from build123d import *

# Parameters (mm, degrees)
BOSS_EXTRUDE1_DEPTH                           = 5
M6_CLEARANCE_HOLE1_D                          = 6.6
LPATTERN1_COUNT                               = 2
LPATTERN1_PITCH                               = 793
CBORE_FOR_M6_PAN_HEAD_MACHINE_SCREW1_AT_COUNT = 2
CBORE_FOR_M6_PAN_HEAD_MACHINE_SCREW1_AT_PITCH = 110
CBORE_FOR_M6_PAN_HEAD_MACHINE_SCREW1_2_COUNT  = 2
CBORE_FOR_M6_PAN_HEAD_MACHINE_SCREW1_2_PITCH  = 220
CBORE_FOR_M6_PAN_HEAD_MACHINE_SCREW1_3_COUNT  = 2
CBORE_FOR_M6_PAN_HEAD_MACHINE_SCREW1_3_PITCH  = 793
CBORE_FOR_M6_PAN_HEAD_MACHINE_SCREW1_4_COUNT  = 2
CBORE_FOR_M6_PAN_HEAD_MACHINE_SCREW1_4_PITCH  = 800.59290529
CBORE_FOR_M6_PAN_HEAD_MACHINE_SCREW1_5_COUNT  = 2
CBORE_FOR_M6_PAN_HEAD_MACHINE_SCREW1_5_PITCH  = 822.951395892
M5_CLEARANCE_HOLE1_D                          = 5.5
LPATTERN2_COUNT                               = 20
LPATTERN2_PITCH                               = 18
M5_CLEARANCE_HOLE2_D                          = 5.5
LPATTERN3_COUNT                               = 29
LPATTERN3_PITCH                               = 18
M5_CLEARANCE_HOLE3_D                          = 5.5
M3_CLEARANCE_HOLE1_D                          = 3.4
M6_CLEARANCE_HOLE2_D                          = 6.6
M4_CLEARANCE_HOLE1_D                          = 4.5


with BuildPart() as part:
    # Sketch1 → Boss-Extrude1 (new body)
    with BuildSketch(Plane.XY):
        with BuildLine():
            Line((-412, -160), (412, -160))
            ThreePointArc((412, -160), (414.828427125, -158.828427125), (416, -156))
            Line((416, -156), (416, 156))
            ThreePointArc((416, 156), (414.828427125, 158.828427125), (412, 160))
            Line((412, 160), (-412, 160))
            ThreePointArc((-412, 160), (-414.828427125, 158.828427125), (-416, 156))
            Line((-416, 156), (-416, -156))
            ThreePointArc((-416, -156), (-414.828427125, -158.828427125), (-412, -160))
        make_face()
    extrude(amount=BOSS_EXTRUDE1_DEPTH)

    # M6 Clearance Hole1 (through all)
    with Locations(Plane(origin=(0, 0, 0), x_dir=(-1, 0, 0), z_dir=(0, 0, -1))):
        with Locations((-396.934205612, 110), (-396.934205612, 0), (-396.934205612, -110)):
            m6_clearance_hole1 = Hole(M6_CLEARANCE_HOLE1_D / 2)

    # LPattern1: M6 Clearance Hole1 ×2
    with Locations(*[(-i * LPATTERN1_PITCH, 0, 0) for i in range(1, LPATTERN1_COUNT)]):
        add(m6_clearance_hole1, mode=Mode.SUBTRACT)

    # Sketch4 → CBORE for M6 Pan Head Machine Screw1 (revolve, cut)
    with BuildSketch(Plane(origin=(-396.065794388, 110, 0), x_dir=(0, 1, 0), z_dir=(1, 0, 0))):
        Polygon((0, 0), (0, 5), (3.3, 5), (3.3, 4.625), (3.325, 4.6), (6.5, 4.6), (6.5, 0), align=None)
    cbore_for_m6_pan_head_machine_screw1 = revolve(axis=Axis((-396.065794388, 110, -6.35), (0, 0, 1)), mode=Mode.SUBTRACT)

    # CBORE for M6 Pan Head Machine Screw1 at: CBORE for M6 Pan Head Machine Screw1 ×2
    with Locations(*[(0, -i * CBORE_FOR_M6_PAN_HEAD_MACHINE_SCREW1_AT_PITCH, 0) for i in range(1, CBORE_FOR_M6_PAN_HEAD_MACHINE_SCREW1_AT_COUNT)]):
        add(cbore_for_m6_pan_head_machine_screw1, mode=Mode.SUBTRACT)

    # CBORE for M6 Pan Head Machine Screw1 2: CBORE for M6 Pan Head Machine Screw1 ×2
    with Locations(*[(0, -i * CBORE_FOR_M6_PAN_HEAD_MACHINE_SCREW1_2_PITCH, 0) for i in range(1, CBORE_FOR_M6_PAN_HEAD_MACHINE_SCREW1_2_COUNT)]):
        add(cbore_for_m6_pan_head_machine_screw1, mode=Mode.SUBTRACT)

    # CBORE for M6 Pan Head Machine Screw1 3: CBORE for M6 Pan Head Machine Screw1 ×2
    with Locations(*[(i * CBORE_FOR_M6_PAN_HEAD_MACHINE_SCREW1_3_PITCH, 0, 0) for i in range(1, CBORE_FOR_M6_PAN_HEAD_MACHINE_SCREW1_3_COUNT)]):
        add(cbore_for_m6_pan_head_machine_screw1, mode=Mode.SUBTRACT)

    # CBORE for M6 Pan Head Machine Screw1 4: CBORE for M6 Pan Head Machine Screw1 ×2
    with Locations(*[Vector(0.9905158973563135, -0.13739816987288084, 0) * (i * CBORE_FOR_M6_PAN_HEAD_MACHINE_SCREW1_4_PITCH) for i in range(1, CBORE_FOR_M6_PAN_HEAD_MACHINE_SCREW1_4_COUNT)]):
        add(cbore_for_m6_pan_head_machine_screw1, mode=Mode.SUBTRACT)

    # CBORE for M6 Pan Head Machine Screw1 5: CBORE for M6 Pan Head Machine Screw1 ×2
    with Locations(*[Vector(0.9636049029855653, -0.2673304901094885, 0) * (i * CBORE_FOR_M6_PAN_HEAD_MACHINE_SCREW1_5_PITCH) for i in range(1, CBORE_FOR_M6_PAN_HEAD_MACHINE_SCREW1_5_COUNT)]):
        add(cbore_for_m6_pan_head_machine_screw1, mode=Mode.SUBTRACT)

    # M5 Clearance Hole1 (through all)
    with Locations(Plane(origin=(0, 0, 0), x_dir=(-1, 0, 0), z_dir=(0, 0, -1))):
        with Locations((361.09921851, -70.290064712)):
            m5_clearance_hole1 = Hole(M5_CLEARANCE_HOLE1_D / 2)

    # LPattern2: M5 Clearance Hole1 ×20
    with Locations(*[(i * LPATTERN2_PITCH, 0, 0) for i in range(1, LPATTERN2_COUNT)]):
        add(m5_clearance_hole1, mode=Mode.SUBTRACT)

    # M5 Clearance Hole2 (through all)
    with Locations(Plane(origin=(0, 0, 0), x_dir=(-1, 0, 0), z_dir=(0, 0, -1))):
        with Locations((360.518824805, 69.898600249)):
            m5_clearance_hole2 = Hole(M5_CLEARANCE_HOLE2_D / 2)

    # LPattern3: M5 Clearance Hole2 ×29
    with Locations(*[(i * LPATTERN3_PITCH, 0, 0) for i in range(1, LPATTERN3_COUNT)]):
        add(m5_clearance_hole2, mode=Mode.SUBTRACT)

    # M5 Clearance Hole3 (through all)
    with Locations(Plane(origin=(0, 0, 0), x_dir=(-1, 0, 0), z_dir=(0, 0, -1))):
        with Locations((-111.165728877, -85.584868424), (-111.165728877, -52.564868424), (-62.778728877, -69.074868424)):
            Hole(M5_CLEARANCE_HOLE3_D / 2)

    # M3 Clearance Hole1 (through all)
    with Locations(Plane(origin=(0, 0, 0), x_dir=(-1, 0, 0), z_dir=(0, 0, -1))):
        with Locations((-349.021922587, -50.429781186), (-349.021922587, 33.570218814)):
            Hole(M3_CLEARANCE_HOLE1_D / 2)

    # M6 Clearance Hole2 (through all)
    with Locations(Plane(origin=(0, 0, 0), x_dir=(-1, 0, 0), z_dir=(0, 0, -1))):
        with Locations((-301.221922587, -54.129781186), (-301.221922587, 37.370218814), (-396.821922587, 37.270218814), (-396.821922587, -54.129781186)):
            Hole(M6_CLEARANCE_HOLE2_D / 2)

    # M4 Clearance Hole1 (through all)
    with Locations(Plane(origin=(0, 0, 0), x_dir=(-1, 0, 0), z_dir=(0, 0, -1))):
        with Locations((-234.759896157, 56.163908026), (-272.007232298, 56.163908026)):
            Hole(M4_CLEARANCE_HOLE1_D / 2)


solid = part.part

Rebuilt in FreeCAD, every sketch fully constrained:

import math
import FreeCAD as App
import Part
import Sketcher

V = App.Vector
Q = App.Units.Quantity


def add_polygon(sketch, points):
    """Adds a closed chain of lines whose ends are joined by coincident constraints."""
    first, n = sketch.GeometryCount, len(points)
    for a, b in zip(points, points[1:] + points[:1]):
        sketch.addGeometry(Part.LineSegment(App.Vector(*a, 0), App.Vector(*b, 0)), False)
    for i in range(n):
        sketch.addConstraint(Sketcher.Constraint("Coincident", first + i, 2, first + (i + 1) % n, 1))

doc = App.newDocument("Part")
body = doc.addObject("PartDesign::Body", "Body")

# Sketch on XY plane
sketch1 = doc.addObject("Sketcher::SketchObject", "Sketch")
body.addObject(sketch1)
sketch1.AttachmentSupport = (doc.XY_Plane, [""])
sketch1.MapMode = "FlatFace"
sketch1.addGeometry([
    Part.LineSegment(V(-412, -160, 0), V(412, -160, 0)),  # 0
    Part.ArcOfCircle(Part.Circle(V(412, -156, 0), V(0, 0, 1), 4), math.radians(-90), math.radians(0)),  # 1
    Part.LineSegment(V(416, -156, 0), V(416, 156, 0)),  # 2
    Part.ArcOfCircle(Part.Circle(V(412, 156, 0), V(0, 0, 1), 4), math.radians(0), math.radians(90)),  # 3
    Part.LineSegment(V(412, 160, 0), V(-412, 160, 0)),  # 4
    Part.ArcOfCircle(Part.Circle(V(-412, 156, 0), V(0, 0, 1), 4), math.radians(90), math.radians(180)),  # 5
    Part.LineSegment(V(-416, 156, 0), V(-416, -156, 0)),  # 6
    Part.ArcOfCircle(Part.Circle(V(-412, -156, 0), V(0, 0, 1), 4), math.radians(180), math.radians(270)),  # 7
], False)
sketch1.addConstraint([
    Sketcher.Constraint("Tangent", 0, 2, 1, 1),
    Sketcher.Constraint("Tangent", 1, 2, 2, 1),
    Sketcher.Constraint("Tangent", 2, 2, 3, 1),
    Sketcher.Constraint("Tangent", 3, 2, 4, 1),
    Sketcher.Constraint("Tangent", 4, 2, 5, 1),
    Sketcher.Constraint("Tangent", 5, 2, 6, 1),
    Sketcher.Constraint("Tangent", 6, 2, 7, 1),
    Sketcher.Constraint("Tangent", 7, 2, 0, 1),
    Sketcher.Constraint("Horizontal", 0),
    Sketcher.Constraint("Vertical", 2),
    Sketcher.Constraint("Horizontal", 4),
    Sketcher.Constraint("Vertical", 6),
    Sketcher.Constraint("Equal", 1, 3),
    Sketcher.Constraint("Equal", 3, 5),
    Sketcher.Constraint("Equal", 5, 7),
    Sketcher.Constraint("Symmetric", 1, 3, 5, 3, -1, 1),
    Sketcher.Constraint("Radius", 1, Q("4 mm")),
    Sketcher.Constraint("DistanceX", 0, 1, 0, 2, Q("824 mm")),
    Sketcher.Constraint("DistanceY", 2, 1, 2, 2, Q("312 mm")),
])
pad1 = doc.addObject("PartDesign::Pad", "Pad")
body.addObject(pad1)
pad1.Profile = sketch1
pad1.Length = 5

# Sketch on XY plane
sketch2 = doc.addObject("Sketcher::SketchObject", "Sketch001")
body.addObject(sketch2)
sketch2.AttachmentSupport = (doc.XY_Plane, [""])
sketch2.MapMode = "FlatFace"
sketch2.addGeometry([
    Part.Circle(V(396.9, 110, 0), V(0, 0, 1), 3.3),
    Part.Circle(V(396.9, 0, 0), V(0, 0, 1), 3.3),
    Part.Circle(V(396.9, -110, 0), V(0, 0, 1), 3.3),
], False)
sketch2.addConstraint([
    Sketcher.Constraint("Equal", 0, 1),
    Sketcher.Constraint("Equal", 1, 2),
    Sketcher.Constraint("Symmetric", 0, 3, 2, 3, -1),
    Sketcher.Constraint("PointOnObject", 1, 3, -1),
    Sketcher.Constraint("Vertical", 0, 3, 1, 3),
    Sketcher.Constraint("Diameter", 0, Q("6.6 mm")),
    Sketcher.Constraint("DistanceY", -1, 1, 0, 3, Q("110 mm")),
    Sketcher.Constraint("DistanceX", -1, 1, 0, 3, Q("396.934206 mm")),
])
doc.recompute()
hole = doc.addObject("PartDesign::Hole", "Hole")
body.addObject(hole)
hole.Profile = sketch2
hole.ThreadType = "None"
hole.Diameter = 6.6
hole.DepthType = "ThroughAll"
hole.Reversed = True
doc.recompute()

linearpattern = doc.addObject("PartDesign::LinearPattern", "LinearPattern")
body.addObject(linearpattern)
linearpattern.Originals = [hole]
linearpattern.Direction = (doc.X_Axis, [""])
linearpattern.Mode = "offset"
linearpattern.Offset = 793
linearpattern.Occurrences = 2
linearpattern.Reversed = True
body.Tip = linearpattern

# Sketch on YZ plane
sketch3 = doc.addObject("Sketcher::SketchObject", "Sketch002")
body.addObject(sketch3)
sketch3.AttachmentSupport = (doc.YZ_Plane, [""])
sketch3.MapMode = "FlatFace"
sketch3.AttachmentOffset = App.Placement(V(0, 0, -396.065794), App.Rotation())
add_polygon(sketch3, [(110, 5), (110, 0), (116.5, 0), (116.5, 4.6), (113.325, 4.6), (113.3, 4.625), (113.3, 5)])  # lines 0-6
sketch3.addGeometry(Part.LineSegment(V(110, 0, 0), V(110, 5, 0)), True)  # axis
sketch3.addConstraint([
    Sketcher.Constraint("Vertical", 0),
    Sketcher.Constraint("Horizontal", 1),
    Sketcher.Constraint("Vertical", 2),
    Sketcher.Constraint("Horizontal", 3),
    Sketcher.Constraint("Vertical", 5),
    Sketcher.Constraint("Horizontal", 6),
    Sketcher.Constraint("Vertical", 7),
    Sketcher.Constraint("Coincident", 7, 1, 0, 2),
    Sketcher.Constraint("PointOnObject", 0, 2, -1),
    Sketcher.Constraint("Horizontal", 5, 2, 7, 2),
    Sketcher.Constraint("DistanceY", 0, 2, 0, 1, Q("5 mm")),
    Sketcher.Constraint("Angle", 4, Q("135 deg")),
    Sketcher.Constraint("DistanceX", 1, 1, 1, 2, Q("6.5 mm")),
    Sketcher.Constraint("DistanceX", 6, 2, 6, 1, Q("3.3 mm")),
    Sketcher.Constraint("DistanceY", 2, 1, 2, 2, Q("4.6 mm")),
    Sketcher.Constraint("DistanceX", -1, 1, 0, 2, Q("110 mm")),
    Sketcher.Constraint("DistanceX", 3, 2, 3, 1, Q("3.175 mm")),
])
groove = doc.addObject("PartDesign::Groove", "Groove")
body.addObject(groove)
groove.Profile = sketch3
groove.ReferenceAxis = (sketch3, ["Axis0"])
groove.Angle = 360
doc.recompute()

linearpattern2 = doc.addObject("PartDesign::LinearPattern", "LinearPattern001")
body.addObject(linearpattern2)
linearpattern2.Originals = [groove]
linearpattern2.Direction = (doc.Y_Axis, [""])
linearpattern2.Mode = "offset"
linearpattern2.Offset = 110
linearpattern2.Occurrences = 2
linearpattern2.Reversed = True
body.Tip = linearpattern2
doc.recompute()

linearpattern3 = doc.addObject("PartDesign::LinearPattern", "LinearPattern002")
body.addObject(linearpattern3)
linearpattern3.Originals = [groove]
linearpattern3.Direction = (doc.Y_Axis, [""])
linearpattern3.Mode = "offset"
linearpattern3.Offset = 220
linearpattern3.Occurrences = 2
linearpattern3.Reversed = True
body.Tip = linearpattern3
doc.recompute()

linearpattern4 = doc.addObject("PartDesign::LinearPattern", "LinearPattern003")
body.addObject(linearpattern4)
linearpattern4.Originals = [groove]
linearpattern4.Direction = (doc.X_Axis, [""])
linearpattern4.Mode = "offset"
linearpattern4.Offset = 793
linearpattern4.Occurrences = 2
body.Tip = linearpattern4
doc.recompute()

datumline = doc.addObject("PartDesign::Line", "DatumLine")
body.addObject(datumline)
datumline.Placement = App.Placement(V(0, 0, 0), App.Rotation(V(0, 0, 1), V(0.990515897, -0.13739817, 0)))
linearpattern5 = doc.addObject("PartDesign::LinearPattern", "LinearPattern004")
body.addObject(linearpattern5)
linearpattern5.Originals = [groove]
linearpattern5.Direction = (datumline, [""])
linearpattern5.Mode = "offset"
linearpattern5.Offset = 800.592905
linearpattern5.Occurrences = 2
body.Tip = linearpattern5
doc.recompute()

datumline2 = doc.addObject("PartDesign::Line", "DatumLine001")
body.addObject(datumline2)
datumline2.Placement = App.Placement(V(0, 0, 0), App.Rotation(V(0, 0, 1), V(0.963604903, -0.26733049, 0)))
linearpattern6 = doc.addObject("PartDesign::LinearPattern", "LinearPattern005")
body.addObject(linearpattern6)
linearpattern6.Originals = [groove]
linearpattern6.Direction = (datumline2, [""])
linearpattern6.Mode = "offset"
linearpattern6.Offset = 822.951396
linearpattern6.Occurrences = 2
body.Tip = linearpattern6

# Sketch on XY plane
sketch4 = doc.addObject("Sketcher::SketchObject", "Sketch003")
body.addObject(sketch4)
sketch4.AttachmentSupport = (doc.XY_Plane, [""])
sketch4.MapMode = "FlatFace"
sketch4.addGeometry(Part.Circle(V(-361.1, -70.3, 0), V(0, 0, 1), 2.8), False)
sketch4.addConstraint([
    Sketcher.Constraint("Diameter", 0, Q("5.5 mm")),
    Sketcher.Constraint("DistanceX", 0, 3, -1, 1, Q("361.099219 mm")),
    Sketcher.Constraint("DistanceY", 0, 3, -1, 1, Q("70.290065 mm")),
])
doc.recompute()
hole2 = doc.addObject("PartDesign::Hole", "Hole001")
body.addObject(hole2)
hole2.Profile = sketch4
hole2.ThreadType = "None"
hole2.Diameter = 5.5
hole2.DepthType = "ThroughAll"
hole2.Reversed = True
doc.recompute()

linearpattern7 = doc.addObject("PartDesign::LinearPattern", "LinearPattern006")
body.addObject(linearpattern7)
linearpattern7.Originals = [hole2]
linearpattern7.Direction = (doc.X_Axis, [""])
linearpattern7.Mode = "offset"
linearpattern7.Offset = 18
linearpattern7.Occurrences = 20
body.Tip = linearpattern7

# Sketch on XY plane
sketch5 = doc.addObject("Sketcher::SketchObject", "Sketch004")
body.addObject(sketch5)
sketch5.AttachmentSupport = (doc.XY_Plane, [""])
sketch5.MapMode = "FlatFace"
sketch5.addGeometry(Part.Circle(V(-360.5, 69.9, 0), V(0, 0, 1), 2.8), False)
sketch5.addConstraint([
    Sketcher.Constraint("Diameter", 0, Q("5.5 mm")),
    Sketcher.Constraint("DistanceY", -1, 1, 0, 3, Q("69.8986 mm")),
    Sketcher.Constraint("DistanceX", 0, 3, -1, 1, Q("360.518825 mm")),
])
doc.recompute()
hole3 = doc.addObject("PartDesign::Hole", "Hole002")
body.addObject(hole3)
hole3.Profile = sketch5
hole3.ThreadType = "None"
hole3.Diameter = 5.5
hole3.DepthType = "ThroughAll"
hole3.Reversed = True
doc.recompute()

linearpattern8 = doc.addObject("PartDesign::LinearPattern", "LinearPattern007")
body.addObject(linearpattern8)
linearpattern8.Originals = [hole3]
linearpattern8.Direction = (doc.X_Axis, [""])
linearpattern8.Mode = "offset"
linearpattern8.Offset = 18
linearpattern8.Occurrences = 29
body.Tip = linearpattern8

# Sketch on XY plane
sketch6 = doc.addObject("Sketcher::SketchObject", "Sketch005")
body.addObject(sketch6)
sketch6.AttachmentSupport = (doc.XY_Plane, [""])
sketch6.MapMode = "FlatFace"
sketch6.addGeometry([
    Part.Circle(V(111.2, -85.6, 0), V(0, 0, 1), 2.8),
    Part.Circle(V(111.2, -52.6, 0), V(0, 0, 1), 2.8),
    Part.Circle(V(62.8, -69.1, 0), V(0, 0, 1), 2.8),
], False)
sketch6.addConstraint([
    Sketcher.Constraint("Equal", 0, 1),
    Sketcher.Constraint("Equal", 1, 2),
    Sketcher.Constraint("Vertical", 0, 3, 1, 3),
    Sketcher.Constraint("Diameter", 0, Q("5.5 mm")),
    Sketcher.Constraint("DistanceY", 0, 3, 1, 3, Q("33.02 mm")),
    Sketcher.Constraint("DistanceY", 0, 3, 2, 3, Q("16.51 mm")),
    Sketcher.Constraint("DistanceX", 2, 3, 0, 3, Q("48.387 mm")),
    Sketcher.Constraint("DistanceX", -1, 1, 0, 3, Q("111.165729 mm")),
    Sketcher.Constraint("DistanceY", 0, 3, -1, 1, Q("85.584868 mm")),
])
doc.recompute()
hole4 = doc.addObject("PartDesign::Hole", "Hole003")
body.addObject(hole4)
hole4.Profile = sketch6
hole4.ThreadType = "None"
hole4.Diameter = 5.5
hole4.DepthType = "ThroughAll"
hole4.Reversed = True

# Sketch on XY plane
sketch7 = doc.addObject("Sketcher::SketchObject", "Sketch006")
body.addObject(sketch7)
sketch7.AttachmentSupport = (doc.XY_Plane, [""])
sketch7.MapMode = "FlatFace"
sketch7.addGeometry([
    Part.Circle(V(349, -50.4, 0), V(0, 0, 1), 1.7),
    Part.Circle(V(349, 33.6, 0), V(0, 0, 1), 1.7),
], False)
sketch7.addConstraint([
    Sketcher.Constraint("Equal", 0, 1),
    Sketcher.Constraint("Vertical", 0, 3, 1, 3),
    Sketcher.Constraint("Diameter", 0, Q("3.4 mm")),
    Sketcher.Constraint("DistanceY", 0, 3, 1, 3, Q("84 mm")),
    Sketcher.Constraint("DistanceY", 0, 3, -1, 1, Q("50.429781 mm")),
    Sketcher.Constraint("DistanceX", -1, 1, 0, 3, Q("349.021923 mm")),
])
doc.recompute()
hole5 = doc.addObject("PartDesign::Hole", "Hole004")
body.addObject(hole5)
hole5.Profile = sketch7
hole5.ThreadType = "None"
hole5.Diameter = 3.4
hole5.DepthType = "ThroughAll"
hole5.Reversed = True

# Sketch on XY plane
sketch8 = doc.addObject("Sketcher::SketchObject", "Sketch007")
body.addObject(sketch8)
sketch8.AttachmentSupport = (doc.XY_Plane, [""])
sketch8.MapMode = "FlatFace"
sketch8.addGeometry([
    Part.Circle(V(301.2, -54.1, 0), V(0, 0, 1), 3.3),
    Part.Circle(V(301.2, 37.4, 0), V(0, 0, 1), 3.3),
    Part.Circle(V(396.8, 37.3, 0), V(0, 0, 1), 3.3),
    Part.Circle(V(396.8, -54.1, 0), V(0, 0, 1), 3.3),
], False)
sketch8.addConstraint([
    Sketcher.Constraint("Equal", 0, 1),
    Sketcher.Constraint("Equal", 1, 2),
    Sketcher.Constraint("Equal", 2, 3),
    Sketcher.Constraint("Horizontal", 0, 3, 3, 3),
    Sketcher.Constraint("Vertical", 0, 3, 1, 3),
    Sketcher.Constraint("Vertical", 2, 3, 3, 3),
    Sketcher.Constraint("Diameter", 0, Q("6.6 mm")),
    Sketcher.Constraint("DistanceY", 0, 3, 1, 3, Q("91.5 mm")),
    Sketcher.Constraint("DistanceX", 1, 3, 2, 3, Q("95.6 mm")),
    Sketcher.Constraint("DistanceY", 2, 3, 1, 3, Q("0.1 mm")),
    Sketcher.Constraint("DistanceY", 0, 3, -1, 1, Q("54.129781 mm")),
    Sketcher.Constraint("DistanceX", -1, 1, 0, 3, Q("301.221923 mm")),
])
doc.recompute()
hole6 = doc.addObject("PartDesign::Hole", "Hole005")
body.addObject(hole6)
hole6.Profile = sketch8
hole6.ThreadType = "None"
hole6.Diameter = 6.6
hole6.DepthType = "ThroughAll"
hole6.Reversed = True

# Sketch on XY plane
sketch9 = doc.addObject("Sketcher::SketchObject", "Sketch008")
body.addObject(sketch9)
sketch9.AttachmentSupport = (doc.XY_Plane, [""])
sketch9.MapMode = "FlatFace"
sketch9.addGeometry([
    Part.Circle(V(234.8, 56.2, 0), V(0, 0, 1), 2.2),
    Part.Circle(V(272, 56.2, 0), V(0, 0, 1), 2.2),
], False)
sketch9.addConstraint([
    Sketcher.Constraint("Equal", 0, 1),
    Sketcher.Constraint("Horizontal", 0, 3, 1, 3),
    Sketcher.Constraint("Diameter", 0, Q("4.5 mm")),
    Sketcher.Constraint("DistanceY", -1, 1, 0, 3, Q("56.163908 mm")),
    Sketcher.Constraint("DistanceX", -1, 1, 0, 3, Q("234.759896 mm")),
    Sketcher.Constraint("DistanceX", -1, 1, 1, 3, Q("272.007232 mm")),
])
doc.recompute()
hole7 = doc.addObject("PartDesign::Hole", "Hole006")
body.addObject(hole7)
hole7.Profile = sketch9
hole7.ThreadType = "None"
hole7.Diameter = 4.5
hole7.DepthType = "ThroughAll"
hole7.Reversed = True

doc.recompute()
